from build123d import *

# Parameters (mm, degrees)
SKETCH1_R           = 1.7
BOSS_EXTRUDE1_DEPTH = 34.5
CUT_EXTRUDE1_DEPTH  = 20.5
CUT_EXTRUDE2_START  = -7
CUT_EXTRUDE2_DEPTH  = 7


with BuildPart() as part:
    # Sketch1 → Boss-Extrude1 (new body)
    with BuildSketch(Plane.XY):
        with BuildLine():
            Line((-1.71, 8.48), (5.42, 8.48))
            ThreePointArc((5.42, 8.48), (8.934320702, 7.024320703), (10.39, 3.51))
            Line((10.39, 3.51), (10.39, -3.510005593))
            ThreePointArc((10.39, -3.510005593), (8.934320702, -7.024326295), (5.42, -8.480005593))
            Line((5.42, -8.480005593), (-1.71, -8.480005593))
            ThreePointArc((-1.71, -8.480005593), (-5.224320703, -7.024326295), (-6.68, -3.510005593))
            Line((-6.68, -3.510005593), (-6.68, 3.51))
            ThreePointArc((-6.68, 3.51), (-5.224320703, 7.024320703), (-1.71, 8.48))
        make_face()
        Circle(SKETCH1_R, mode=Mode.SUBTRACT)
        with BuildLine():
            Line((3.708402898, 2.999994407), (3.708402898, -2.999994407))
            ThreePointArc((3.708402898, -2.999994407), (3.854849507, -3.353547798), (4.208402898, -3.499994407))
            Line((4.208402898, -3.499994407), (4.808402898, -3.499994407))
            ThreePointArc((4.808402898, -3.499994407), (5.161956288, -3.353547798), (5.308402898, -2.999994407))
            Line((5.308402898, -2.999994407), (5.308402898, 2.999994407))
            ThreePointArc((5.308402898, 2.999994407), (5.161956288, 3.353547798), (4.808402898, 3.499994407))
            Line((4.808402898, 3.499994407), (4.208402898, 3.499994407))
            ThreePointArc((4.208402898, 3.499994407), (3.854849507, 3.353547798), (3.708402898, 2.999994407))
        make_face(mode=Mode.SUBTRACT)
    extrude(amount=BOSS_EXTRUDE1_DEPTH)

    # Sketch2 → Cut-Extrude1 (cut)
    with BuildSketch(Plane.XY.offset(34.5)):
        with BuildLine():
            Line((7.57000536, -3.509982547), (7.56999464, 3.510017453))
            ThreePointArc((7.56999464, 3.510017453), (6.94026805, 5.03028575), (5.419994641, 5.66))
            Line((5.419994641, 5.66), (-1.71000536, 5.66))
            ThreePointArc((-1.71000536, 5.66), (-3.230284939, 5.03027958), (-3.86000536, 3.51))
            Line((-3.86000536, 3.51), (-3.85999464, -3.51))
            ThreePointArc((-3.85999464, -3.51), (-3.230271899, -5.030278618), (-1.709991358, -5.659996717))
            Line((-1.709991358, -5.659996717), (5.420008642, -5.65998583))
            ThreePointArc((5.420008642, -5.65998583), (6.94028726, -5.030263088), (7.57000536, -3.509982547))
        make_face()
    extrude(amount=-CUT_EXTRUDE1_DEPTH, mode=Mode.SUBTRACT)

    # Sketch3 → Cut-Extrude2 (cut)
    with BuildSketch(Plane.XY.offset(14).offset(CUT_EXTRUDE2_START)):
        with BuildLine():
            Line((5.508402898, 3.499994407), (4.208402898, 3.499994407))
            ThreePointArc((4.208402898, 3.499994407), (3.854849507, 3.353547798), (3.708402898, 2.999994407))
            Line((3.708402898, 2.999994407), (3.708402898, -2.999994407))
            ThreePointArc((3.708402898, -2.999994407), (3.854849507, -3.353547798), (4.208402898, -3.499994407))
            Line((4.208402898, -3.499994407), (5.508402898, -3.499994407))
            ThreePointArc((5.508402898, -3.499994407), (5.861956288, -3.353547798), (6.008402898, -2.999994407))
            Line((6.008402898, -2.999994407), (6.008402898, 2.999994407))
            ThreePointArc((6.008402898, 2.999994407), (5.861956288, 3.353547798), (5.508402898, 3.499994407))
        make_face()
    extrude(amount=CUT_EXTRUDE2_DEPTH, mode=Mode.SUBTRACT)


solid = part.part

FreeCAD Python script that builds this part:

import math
import FreeCAD as App
import Part
import Sketcher
from FreeCAD import Vector
Q = App.Units.Quantity

doc = App.newDocument("Part")
body = doc.addObject("PartDesign::Body", "Body")

# Sketch on XY plane
sketch1 = body.newObject("Sketcher::SketchObject", "Sketch")
sketch1.AttachmentSupport = (doc.getObject("XY_Plane"), [""])
sketch1.MapMode = "FlatFace"
sketch1.addGeometry(Part.LineSegment(Vector(5.42, 8.48, 0), Vector(-1.71, 8.48, 0)), False)
sketch1.addGeometry(Part.ArcOfCircle(Part.Circle(Vector(-1.71, 3.51, 0), Vector(0, 0, 1), 4.97), math.radians(90), math.radians(180)), False)
sketch1.addGeometry(Part.LineSegment(Vector(-6.68, 3.51, 0), Vector(-6.68, -3.51, 0)), False)
sketch1.addGeometry(Part.ArcOfCircle(Part.Circle(Vector(-1.71, -3.51, 0), Vector(0, 0, 1), 4.97), math.radians(180), math.radians(270)), False)
sketch1.addGeometry(Part.LineSegment(Vector(-1.71, -8.48, 0), Vector(5.42, -8.48, 0)), False)
sketch1.addGeometry(Part.ArcOfCircle(Part.Circle(Vector(5.42, -3.51, 0), Vector(0, 0, 1), 4.97), math.radians(-90), math.radians(0)), False)
sketch1.addGeometry(Part.LineSegment(Vector(10.39, -3.51, 0), Vector(10.39, 3.51, 0)), False)
sketch1.addGeometry(Part.ArcOfCircle(Part.Circle(Vector(5.42, 3.51, 0), Vector(0, 0, 1), 4.97), math.radians(0), math.radians(90)), False)
sketch1.addGeometry(Part.ArcOfCircle(Part.Circle(Vector(4.21, 3, 0), Vector(0, 0, 1), 0.5), math.radians(90), math.radians(180)), False)
sketch1.addGeometry(Part.LineSegment(Vector(4.21, 3.5, 0), Vector(4.81, 3.5, 0)), False)
sketch1.addGeometry(Part.ArcOfCircle(Part.Circle(Vector(4.81, 3, 0), Vector(0, 0, 1), 0.5), math.radians(0), math.radians(90)), False)
sketch1.addGeometry(Part.LineSegment(Vector(5.31, 3, 0), Vector(5.31, -3, 0)), False)
sketch1.addGeometry(Part.ArcOfCircle(Part.Circle(Vector(4.81, -3, 0), Vector(0, 0, 1), 0.5), math.radians(-90), math.radians(0)), False)
sketch1.addGeometry(Part.LineSegment(Vector(4.81, -3.5, 0), Vector(4.21, -3.5, 0)), False)
sketch1.addGeometry(Part.ArcOfCircle(Part.Circle(Vector(4.21, -3, 0), Vector(0, 0, 1), 0.5), math.radians(180), math.radians(270)), False)
sketch1.addGeometry(Part.LineSegment(Vector(3.71, -3, 0), Vector(3.71, 3, 0)), False)
sketch1.addGeometry(Part.Circle(Vector(0, 0, 0), Vector(0, 0, 1), 1.7), False)
sketch1.addConstraint(Sketcher.Constraint("Tangent", 0, 2, 1, 1))
sketch1.addConstraint(Sketcher.Constraint("Tangent", 1, 2, 2, 1))
sketch1.addConstraint(Sketcher.Constraint("Tangent", 2, 2, 3, 1))
sketch1.addConstraint(Sketcher.Constraint("Tangent", 3, 2, 4, 1))
sketch1.addConstraint(Sketcher.Constraint("Tangent", 4, 2, 5, 1))
sketch1.addConstraint(Sketcher.Constraint("Tangent", 5, 2, 6, 1))
sketch1.addConstraint(Sketcher.Constraint("Tangent", 6, 2, 7, 1))
sketch1.addConstraint(Sketcher.Constraint("Tangent", 7, 2, 0, 1))
sketch1.addConstraint(Sketcher.Constraint("Tangent", 8, 1, 9, 1))
sketch1.addConstraint(Sketcher.Constraint("Tangent", 9, 2, 10, 2))
sketch1.addConstraint(Sketcher.Constraint("Tangent", 10, 1, 11, 1))
sketch1.addConstraint(Sketcher.Constraint("Tangent", 11, 2, 12, 2))
sketch1.addConstraint(Sketcher.Constraint("Tangent", 12, 1, 13, 1))
sketch1.addConstraint(Sketcher.Constraint("Tangent", 13, 2, 14, 2))
sketch1.addConstraint(Sketcher.Constraint("Tangent", 14, 1, 15, 1))
sketch1.addConstraint(Sketcher.Constraint("Tangent", 15, 2, 8, 2))
sketch1.addConstraint(Sketcher.Constraint("Horizontal", 0))
sketch1.addConstraint(Sketcher.Constraint("Vertical", 2))
sketch1.addConstraint(Sketcher.Constraint("Horizontal", 4))
sketch1.addConstraint(Sketcher.Constraint("Vertical", 6))
sketch1.addConstraint(Sketcher.Constraint("Horizontal", 9))
sketch1.addConstraint(Sketcher.Constraint("Vertical", 11))
sketch1.addConstraint(Sketcher.Constraint("Horizontal", 13))
sketch1.addConstraint(Sketcher.Constraint("Vertical", 15))
sketch1.addConstraint(Sketcher.Constraint("Coincident", 16, 3, -1, 1))
sketch1.addConstraint(Sketcher.Constraint("Equal", 1, 3))
sketch1.addConstraint(Sketcher.Constraint("Equal", 3, 5))
sketch1.addConstraint(Sketcher.Constraint("Equal", 5, 7))
sketch1.addConstraint(Sketcher.Constraint("Equal", 8, 10))
sketch1.addConstraint(Sketcher.Constraint("Equal", 10, 12))
sketch1.addConstraint(Sketcher.Constraint("Equal", 12, 14))
sketch1.addConstraint(Sketcher.Constraint("Diameter", 16, Q("3.4 mm")))
sketch1.addConstraint(Sketcher.Constraint("Radius", 8, Q("0.5 mm")))
sketch1.addConstraint(Sketcher.Constraint("Radius", 1, Q("4.97 mm")))
sketch1.addConstraint(Sketcher.Constraint("DistanceX", 9, 1, 9, 2, Q("0.6 mm")))
sketch1.addConstraint(Sketcher.Constraint("DistanceX", 0, 2, 0, 1, Q("7.13 mm")))
sketch1.addConstraint(Sketcher.Constraint("DistanceX", 1, 3, -1, 1, Q("1.71 mm")))
sketch1.addConstraint(Sketcher.Constraint("DistanceY", -1, 1, 1, 3, Q("3.51 mm")))
sketch1.addConstraint(Sketcher.Constraint("DistanceY", 5, 3, 8, 3, Q("6.51 mm")))
sketch1.addConstraint(Sketcher.Constraint("DistanceY", 11, 2, 11, 1, Q("5.999989 mm")))
sketch1.addConstraint(Sketcher.Constraint("DistanceY", 2, 2, 2, 1, Q("7.020006 mm")))
sketch1.addConstraint(Sketcher.Constraint("DistanceX", -1, 1, 8, 3, Q("4.208403 mm")))
pad1 = body.newObject("PartDesign::Pad", "Pad")
pad1.Profile = sketch1
pad1.Length = 34.5

# Sketch on XY plane
sketch2 = body.newObject("Sketcher::SketchObject", "Sketch001")
sketch2.AttachmentSupport = (doc.getObject("XY_Plane"), [""])
sketch2.MapMode = "FlatFace"
sketch2.AttachmentOffset = App.Placement(Vector(0, 0, 34.5), App.Rotation())
sketch2.addGeometry(Part.LineSegment(Vector(7.570005, -3.509983, 0), Vector(7.569995, 3.510017, 0)), False)
sketch2.addGeometry(Part.ArcOfCircle(Part.Circle(Vector(5.419995, 3.51, 0), Vector(0, 0, 1), 2.15), math.radians(0.000465), math.radians(90)), False)
sketch2.addGeometry(Part.LineSegment(Vector(5.419995, 5.66, 0), Vector(-1.710005, 5.66, 0)), False)
sketch2.addGeometry(Part.ArcOfCircle(Part.Circle(Vector(-1.710005, 3.51, 0), Vector(0, 0, 1), 2.15), math.radians(90), math.radians(180)), False)
sketch2.addGeometry(Part.LineSegment(Vector(-3.860005, 3.51, 0), Vector(-3.859995, -3.51, 0)), False)
sketch2.addGeometry(Part.ArcOfCircle(Part.Circle(Vector(-1.709995, -3.509997, 0), Vector(0, 0, 1), 2.15), math.radians(-179.999913), math.radians(-89.999912)), False)
sketch2.addGeometry(Part.LineSegment(Vector(-1.709991, -5.659997, 0), Vector(5.420009, -5.659986, 0)), False)
sketch2.addGeometry(Part.ArcOfCircle(Part.Circle(Vector(5.420005, -3.509986, 0), Vector(0, 0, 1), 2.15), math.radians(-89.999912), math.radians(0.000087)), False)
sketch2.addConstraint(Sketcher.Constraint("Coincident", 0, 2, 1, 1))
sketch2.addConstraint(Sketcher.Constraint("Coincident", 1, 2, 2, 1))
sketch2.addConstraint(Sketcher.Constraint("Coincident", 2, 2, 3, 1))
sketch2.addConstraint(Sketcher.Constraint("Coincident", 3, 2, 4, 1))
sketch2.addConstraint(Sketcher.Constraint("Coincident", 4, 2, 5, 1))
sketch2.addConstraint(Sketcher.Constraint("Coincident", 5, 2, 6, 1))
sketch2.addConstraint(Sketcher.Constraint("Coincident", 6, 2, 7, 1))
sketch2.addConstraint(Sketcher.Constraint("Coincident", 7, 2, 0, 1))
sketch2.addConstraint(Sketcher.Constraint("Horizontal", 2))
sketch2.addConstraint(Sketcher.Constraint("Radius", 1, Q("2.15 mm")))
sketch2.addConstraint(Sketcher.Constraint("Radius", 3, Q("2.15 mm")))
sketch2.addConstraint(Sketcher.Constraint("Radius", 5, Q("2.15 mm")))
sketch2.addConstraint(Sketcher.Constraint("Radius", 7, Q("2.15 mm")))
sketch2.addConstraint(Sketcher.Constraint("DistanceX", 2, 2, 2, 1, Q("7.13 mm")))
sketch2.addConstraint(Sketcher.Constraint("Distance", 0, Q("7.02 mm")))
sketch2.addConstraint(Sketcher.Constraint("Distance", 4, Q("7.02 mm")))
sketch2.addConstraint(Sketcher.Constraint("Distance", 6, Q("7.13 mm")))
sketch2.addConstraint(Sketcher.Constraint("DistanceY", -1, 1, 1, 3, Q("3.51 mm")))
sketch2.addConstraint(Sketcher.Constraint("DistanceY", -1, 1, 3, 2, Q("3.51 mm")))
sketch2.addConstraint(Sketcher.Constraint("DistanceX", 3, 3, 1, 3, Q("7.13 mm")))
sketch2.addConstraint(Sketcher.Constraint("DistanceX", 5, 3, 7, 3, Q("7.13 mm")))
sketch2.addConstraint(Sketcher.Constraint("DistanceX", 1, 2, 0, 2, Q("2.15 mm")))
sketch2.addConstraint(Sketcher.Constraint("DistanceX", 5, 2, -1, 1, Q("1.709991 mm")))
sketch2.addConstraint(Sketcher.Constraint("DistanceX", 5, 3, 1, 3, Q("7.129989 mm")))
sketch2.addConstraint(Sketcher.Constraint("DistanceY", 5, 2, 7, 3, Q("2.150011 mm")))
sketch2.addConstraint(Sketcher.Constraint("DistanceX", -1, 1, 1, 3, Q("5.419995 mm")))
sketch2.addConstraint(Sketcher.Constraint("DistanceY", 5, 3, -1, 1, Q("3.509997 mm")))
sketch2.addConstraint(Sketcher.Constraint("DistanceY", -1, 1, 0, 2, Q("3.510017 mm")))
pocket1 = body.newObject("PartDesign::Pocket", "Pocket")
pocket1.Profile = sketch2
pocket1.Length = 20.5

# Sketch on XY plane
sketch3 = body.newObject("Sketcher::SketchObject", "Sketch002")
sketch3.AttachmentSupport = (doc.getObject("XY_Plane"), [""])
sketch3.MapMode = "FlatFace"
sketch3.AttachmentOffset = App.Placement(Vector(0, 0, 7), App.Rotation())
sketch3.addGeometry(Part.LineSegment(Vector(5.51, 3.5, 0), Vector(4.21, 3.5, 0)), False)
sketch3.addGeometry(Part.ArcOfCircle(Part.Circle(Vector(4.21, 3, 0), Vector(0, 0, 1), 0.5), math.radians(90), math.radians(180)), False)
sketch3.addGeometry(Part.LineSegment(Vector(3.71, 3, 0), Vector(3.71, -3, 0)), False)
sketch3.addGeometry(Part.ArcOfCircle(Part.Circle(Vector(4.21, -3, 0), Vector(0, 0, 1), 0.5), math.radians(180), math.radians(270)), False)
sketch3.addGeometry(Part.LineSegment(Vector(4.21, -3.5, 0), Vector(5.51, -3.5, 0)), False)
sketch3.addGeometry(Part.ArcOfCircle(Part.Circle(Vector(5.51, -3, 0), Vector(0, 0, 1), 0.5), math.radians(-90), math.radians(0)), False)
sketch3.addGeometry(Part.LineSegment(Vector(6.01, -3, 0), Vector(6.01, 3, 0)), False)
sketch3.addGeometry(Part.ArcOfCircle(Part.Circle(Vector(5.51, 3, 0), Vector(0, 0, 1), 0.5), math.radians(0), math.radians(90)), False)
sketch3.addConstraint(Sketcher.Constraint("Tangent", 0, 2, 1, 1))
sketch3.addConstraint(Sketcher.Constraint("Tangent", 1, 2, 2, 1))
sketch3.addConstraint(Sketcher.Constraint("Tangent", 2, 2, 3, 1))
sketch3.addConstraint(Sketcher.Constraint("Tangent", 3, 2, 4, 1))
sketch3.addConstraint(Sketcher.Constraint("Tangent", 4, 2, 5, 1))
sketch3.addConstraint(Sketcher.Constraint("Tangent", 5, 2, 6, 1))
sketch3.addConstraint(Sketcher.Constraint("Tangent", 6, 2, 7, 1))
sketch3.addConstraint(Sketcher.Constraint("Tangent", 7, 2, 0, 1))
sketch3.addConstraint(Sketcher.Constraint("Horizontal", 0))
sketch3.addConstraint(Sketcher.Constraint("Vertical", 2))
sketch3.addConstraint(Sketcher.Constraint("Horizontal", 4))
sketch3.addConstraint(Sketcher.Constraint("Vertical", 6))
sketch3.addConstraint(Sketcher.Constraint("Equal", 1, 3))
sketch3.addConstraint(Sketcher.Constraint("Equal", 3, 5))
sketch3.addConstraint(Sketcher.Constraint("Equal", 5, 7))
sketch3.addConstraint(Sketcher.Constraint("Radius", 1, Q("0.5 mm")))
sketch3.addConstraint(Sketcher.Constraint("DistanceX", 0, 2, 0, 1, Q("1.3 mm")))
sketch3.addConstraint(Sketcher.Constraint("DistanceY", 2, 2, 2, 1, Q("5.999989 mm")))
sketch3.addConstraint(Sketcher.Constraint("DistanceX", -1, 1, 1, 3, Q("4.208403 mm")))
sketch3.addConstraint(Sketcher.Constraint("DistanceY", -1, 1, 1, 3, Q("2.999994 mm")))
pocket2 = body.newObject("PartDesign::Pocket", "Pocket001")
pocket2.Profile = sketch3
pocket2.Length = 7
pocket2.Reversed = True

doc.recompute()
